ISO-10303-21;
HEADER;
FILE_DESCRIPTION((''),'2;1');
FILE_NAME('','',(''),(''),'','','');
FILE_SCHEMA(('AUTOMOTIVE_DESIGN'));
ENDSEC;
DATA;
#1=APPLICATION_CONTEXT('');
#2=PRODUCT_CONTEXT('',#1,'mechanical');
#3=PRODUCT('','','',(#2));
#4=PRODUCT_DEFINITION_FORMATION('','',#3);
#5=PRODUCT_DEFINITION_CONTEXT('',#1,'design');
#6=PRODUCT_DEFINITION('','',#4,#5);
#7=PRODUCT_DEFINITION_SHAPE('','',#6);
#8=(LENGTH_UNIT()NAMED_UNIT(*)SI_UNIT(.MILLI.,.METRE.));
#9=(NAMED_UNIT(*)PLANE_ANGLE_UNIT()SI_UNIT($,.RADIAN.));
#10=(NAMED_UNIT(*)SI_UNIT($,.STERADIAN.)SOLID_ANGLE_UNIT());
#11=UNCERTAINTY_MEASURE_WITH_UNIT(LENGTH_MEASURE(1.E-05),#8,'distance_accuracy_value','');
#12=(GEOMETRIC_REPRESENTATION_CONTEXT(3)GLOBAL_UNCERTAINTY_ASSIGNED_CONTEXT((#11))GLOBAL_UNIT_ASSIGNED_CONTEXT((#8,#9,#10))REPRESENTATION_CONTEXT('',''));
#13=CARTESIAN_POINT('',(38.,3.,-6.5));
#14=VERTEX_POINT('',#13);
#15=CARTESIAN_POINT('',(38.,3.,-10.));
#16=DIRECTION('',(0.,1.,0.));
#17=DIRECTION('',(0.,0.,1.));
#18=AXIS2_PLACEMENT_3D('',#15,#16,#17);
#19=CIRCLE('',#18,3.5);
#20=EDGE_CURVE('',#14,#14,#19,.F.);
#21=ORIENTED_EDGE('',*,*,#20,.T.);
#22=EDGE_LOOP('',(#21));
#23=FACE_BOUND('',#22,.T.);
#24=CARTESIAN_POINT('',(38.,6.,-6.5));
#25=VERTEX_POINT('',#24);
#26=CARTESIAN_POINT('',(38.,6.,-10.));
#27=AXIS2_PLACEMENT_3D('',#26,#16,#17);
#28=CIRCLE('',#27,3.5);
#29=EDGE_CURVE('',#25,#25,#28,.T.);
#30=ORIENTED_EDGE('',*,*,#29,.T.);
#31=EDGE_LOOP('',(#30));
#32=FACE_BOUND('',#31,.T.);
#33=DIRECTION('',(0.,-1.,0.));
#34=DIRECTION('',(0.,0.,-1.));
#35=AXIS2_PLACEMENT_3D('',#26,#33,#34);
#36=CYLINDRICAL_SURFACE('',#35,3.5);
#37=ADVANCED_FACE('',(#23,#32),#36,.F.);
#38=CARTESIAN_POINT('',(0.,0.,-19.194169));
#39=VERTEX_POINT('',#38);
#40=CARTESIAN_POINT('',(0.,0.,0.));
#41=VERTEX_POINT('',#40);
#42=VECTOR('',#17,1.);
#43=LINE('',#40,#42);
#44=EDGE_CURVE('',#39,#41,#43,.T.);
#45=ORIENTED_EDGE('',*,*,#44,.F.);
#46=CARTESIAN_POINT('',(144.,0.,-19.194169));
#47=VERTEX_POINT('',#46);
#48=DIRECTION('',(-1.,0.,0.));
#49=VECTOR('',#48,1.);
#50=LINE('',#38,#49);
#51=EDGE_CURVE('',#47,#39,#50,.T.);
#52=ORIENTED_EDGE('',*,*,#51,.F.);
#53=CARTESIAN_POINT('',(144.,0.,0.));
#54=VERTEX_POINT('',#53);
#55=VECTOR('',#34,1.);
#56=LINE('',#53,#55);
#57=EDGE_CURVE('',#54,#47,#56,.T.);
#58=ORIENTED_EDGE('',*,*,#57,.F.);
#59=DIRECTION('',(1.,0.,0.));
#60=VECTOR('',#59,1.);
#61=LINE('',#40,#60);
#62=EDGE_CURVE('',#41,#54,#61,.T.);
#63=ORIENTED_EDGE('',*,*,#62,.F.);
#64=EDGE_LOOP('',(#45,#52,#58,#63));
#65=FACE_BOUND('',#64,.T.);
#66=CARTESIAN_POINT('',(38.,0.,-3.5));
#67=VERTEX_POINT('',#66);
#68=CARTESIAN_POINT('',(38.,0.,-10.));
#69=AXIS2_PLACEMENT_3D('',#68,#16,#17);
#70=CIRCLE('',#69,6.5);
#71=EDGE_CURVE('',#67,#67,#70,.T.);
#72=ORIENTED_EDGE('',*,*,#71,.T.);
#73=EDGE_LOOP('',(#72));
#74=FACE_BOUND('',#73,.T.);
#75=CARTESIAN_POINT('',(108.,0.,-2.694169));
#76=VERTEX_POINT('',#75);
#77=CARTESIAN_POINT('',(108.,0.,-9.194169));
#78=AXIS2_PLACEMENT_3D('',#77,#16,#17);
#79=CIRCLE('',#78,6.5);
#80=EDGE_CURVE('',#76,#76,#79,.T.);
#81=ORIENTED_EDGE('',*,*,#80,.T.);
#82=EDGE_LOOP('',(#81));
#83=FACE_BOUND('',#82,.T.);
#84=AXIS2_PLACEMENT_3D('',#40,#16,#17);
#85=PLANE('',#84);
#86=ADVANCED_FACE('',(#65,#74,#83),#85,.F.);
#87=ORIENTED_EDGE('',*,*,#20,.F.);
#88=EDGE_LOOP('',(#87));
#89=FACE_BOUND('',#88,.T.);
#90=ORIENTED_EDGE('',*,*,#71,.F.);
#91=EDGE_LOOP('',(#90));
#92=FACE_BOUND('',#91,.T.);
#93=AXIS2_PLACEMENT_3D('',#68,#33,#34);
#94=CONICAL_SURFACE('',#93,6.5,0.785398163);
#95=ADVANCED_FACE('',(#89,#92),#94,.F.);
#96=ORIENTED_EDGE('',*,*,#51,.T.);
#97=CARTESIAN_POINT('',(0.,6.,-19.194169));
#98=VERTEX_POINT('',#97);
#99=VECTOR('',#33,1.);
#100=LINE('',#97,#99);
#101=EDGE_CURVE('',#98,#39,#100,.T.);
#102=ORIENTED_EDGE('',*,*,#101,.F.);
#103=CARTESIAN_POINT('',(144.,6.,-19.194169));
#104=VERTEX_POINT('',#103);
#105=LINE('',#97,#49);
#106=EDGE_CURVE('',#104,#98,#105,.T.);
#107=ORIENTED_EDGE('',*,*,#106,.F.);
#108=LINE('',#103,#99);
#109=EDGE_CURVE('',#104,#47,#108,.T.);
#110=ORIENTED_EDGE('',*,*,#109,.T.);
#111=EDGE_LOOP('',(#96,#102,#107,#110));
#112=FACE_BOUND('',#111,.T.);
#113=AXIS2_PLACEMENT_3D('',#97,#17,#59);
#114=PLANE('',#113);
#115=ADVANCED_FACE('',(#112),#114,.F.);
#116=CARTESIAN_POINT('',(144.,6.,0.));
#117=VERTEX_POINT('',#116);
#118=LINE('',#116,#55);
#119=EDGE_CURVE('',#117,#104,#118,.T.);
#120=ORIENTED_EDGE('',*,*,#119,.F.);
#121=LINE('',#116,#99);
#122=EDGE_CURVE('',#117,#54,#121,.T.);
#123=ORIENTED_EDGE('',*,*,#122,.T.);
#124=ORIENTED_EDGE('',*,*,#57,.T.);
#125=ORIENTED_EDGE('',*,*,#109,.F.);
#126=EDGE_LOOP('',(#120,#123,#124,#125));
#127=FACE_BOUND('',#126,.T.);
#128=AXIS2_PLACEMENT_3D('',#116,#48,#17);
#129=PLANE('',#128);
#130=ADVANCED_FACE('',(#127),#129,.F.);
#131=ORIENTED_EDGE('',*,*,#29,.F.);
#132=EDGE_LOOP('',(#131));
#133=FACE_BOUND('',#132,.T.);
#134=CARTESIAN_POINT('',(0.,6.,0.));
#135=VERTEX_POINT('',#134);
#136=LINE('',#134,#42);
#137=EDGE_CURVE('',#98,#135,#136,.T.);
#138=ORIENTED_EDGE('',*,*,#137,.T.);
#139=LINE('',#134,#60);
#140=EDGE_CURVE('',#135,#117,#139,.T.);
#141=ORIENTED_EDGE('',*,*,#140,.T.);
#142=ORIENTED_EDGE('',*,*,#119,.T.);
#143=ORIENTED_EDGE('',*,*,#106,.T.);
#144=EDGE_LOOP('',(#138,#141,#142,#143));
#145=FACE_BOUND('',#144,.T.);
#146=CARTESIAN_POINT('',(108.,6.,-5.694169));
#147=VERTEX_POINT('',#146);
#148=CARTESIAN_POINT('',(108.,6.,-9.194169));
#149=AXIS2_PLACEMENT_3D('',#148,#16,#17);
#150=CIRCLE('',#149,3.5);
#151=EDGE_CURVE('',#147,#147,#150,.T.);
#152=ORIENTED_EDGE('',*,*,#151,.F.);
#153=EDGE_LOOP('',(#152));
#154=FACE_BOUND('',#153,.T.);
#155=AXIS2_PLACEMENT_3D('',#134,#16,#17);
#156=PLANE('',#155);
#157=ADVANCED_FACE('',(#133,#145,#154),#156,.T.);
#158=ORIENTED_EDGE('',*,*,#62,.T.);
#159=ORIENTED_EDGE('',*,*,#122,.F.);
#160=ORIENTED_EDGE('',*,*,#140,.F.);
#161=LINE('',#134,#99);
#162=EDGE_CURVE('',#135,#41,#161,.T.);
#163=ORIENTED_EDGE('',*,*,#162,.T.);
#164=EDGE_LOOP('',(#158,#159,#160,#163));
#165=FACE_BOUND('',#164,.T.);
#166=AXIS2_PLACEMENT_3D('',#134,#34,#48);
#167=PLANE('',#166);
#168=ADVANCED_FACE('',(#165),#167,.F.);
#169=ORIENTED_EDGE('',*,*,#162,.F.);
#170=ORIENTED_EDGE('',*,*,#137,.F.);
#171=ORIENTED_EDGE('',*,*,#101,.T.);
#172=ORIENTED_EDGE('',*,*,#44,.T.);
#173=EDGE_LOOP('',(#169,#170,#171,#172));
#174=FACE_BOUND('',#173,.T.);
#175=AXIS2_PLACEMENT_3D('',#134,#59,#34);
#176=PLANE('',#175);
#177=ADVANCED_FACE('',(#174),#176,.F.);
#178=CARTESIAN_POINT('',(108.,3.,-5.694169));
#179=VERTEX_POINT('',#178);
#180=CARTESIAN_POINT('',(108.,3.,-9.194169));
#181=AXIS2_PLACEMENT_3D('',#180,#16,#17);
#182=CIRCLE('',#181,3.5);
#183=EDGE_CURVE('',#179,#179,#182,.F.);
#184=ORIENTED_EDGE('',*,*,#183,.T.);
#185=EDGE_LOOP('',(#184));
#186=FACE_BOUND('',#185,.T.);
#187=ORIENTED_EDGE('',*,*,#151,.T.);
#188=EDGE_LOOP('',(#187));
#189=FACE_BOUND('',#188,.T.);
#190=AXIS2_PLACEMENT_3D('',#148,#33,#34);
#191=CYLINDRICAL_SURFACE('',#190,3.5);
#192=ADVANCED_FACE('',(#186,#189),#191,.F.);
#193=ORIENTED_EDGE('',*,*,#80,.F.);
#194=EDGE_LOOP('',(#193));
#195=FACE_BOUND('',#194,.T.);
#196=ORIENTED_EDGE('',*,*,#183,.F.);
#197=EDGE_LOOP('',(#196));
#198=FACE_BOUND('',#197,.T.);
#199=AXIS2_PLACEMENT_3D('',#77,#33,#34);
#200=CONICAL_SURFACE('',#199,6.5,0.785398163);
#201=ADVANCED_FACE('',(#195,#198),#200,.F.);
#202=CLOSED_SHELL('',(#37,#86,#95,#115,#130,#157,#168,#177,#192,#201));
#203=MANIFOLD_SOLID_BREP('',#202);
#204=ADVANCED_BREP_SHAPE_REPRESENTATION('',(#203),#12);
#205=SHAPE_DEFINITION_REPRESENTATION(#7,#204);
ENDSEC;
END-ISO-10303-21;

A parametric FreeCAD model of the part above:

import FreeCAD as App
import Part
import Sketcher


def edges_at(feature, points):
    """Names of the edges that pass closest to the given points."""
    edges = feature.Shape.Edges
    near = lambda p: min(range(len(edges)), key=lambda i: edges[i].distToShape(Part.Vertex(*p))[0])
    return sorted({f"Edge{near(p) + 1}" for p in points})


def add_polygon(sketch, points):
    """Adds a closed chain of lines whose ends are joined by coincident constraints."""
    first, n = sketch.GeometryCount, len(points)
    for a, b in zip(points, points[1:] + points[:1]):
        sketch.addGeometry(Part.LineSegment(App.Vector(*a, 0), App.Vector(*b, 0)), False)
    for i in range(n):
        sketch.addConstraint(Sketcher.Constraint("Coincident", first + i, 2, first + (i + 1) % n, 1))

doc = App.newDocument("Part")
body = doc.addObject("PartDesign::Body", "Body")

# Sketch on XZ plane
sketch1 = body.newObject("Sketcher::SketchObject", "Sketch")
sketch1.AttachmentSupport = (doc.getObject("XZ_Plane"), [""])
sketch1.MapMode = "FlatFace"
add_polygon(sketch1, [(144, -19.2), (0, -19.2), (0, 0), (144, 0)])  # lines 0-3
sketch1.addGeometry(Part.Circle(App.Vector(108, -9.2, 0), App.Vector(0, 0, 1), 3.5), False)  # 4
sketch1.addGeometry(Part.Circle(App.Vector(38, -10, 0), App.Vector(0, 0, 1), 3.5), False)  # 5
sketch1.addConstraint([
    Sketcher.Constraint("Horizontal", 0),
    Sketcher.Constraint("Vertical", 1),
    Sketcher.Constraint("Horizontal", 2),
    Sketcher.Constraint("Vertical", 3),
    Sketcher.Constraint("Coincident", 1, 2, -1, 1),
    Sketcher.Constraint("Equal", 4, 5),
    Sketcher.Constraint("Diameter", 4, 7.0),
    Sketcher.Constraint("DistanceX", 0, 2, 0, 1, 144.0),
    Sketcher.Constraint("DistanceX", -1, 1, 4, 3, 108.0),
    Sketcher.Constraint("DistanceX", -1, 1, 5, 3, 38.0),
    Sketcher.Constraint("DistanceY", 5, 3, -1, 1, 10.0),
    Sketcher.Constraint("DistanceY", 0, 2, 4, 3, 10.0),
    Sketcher.Constraint("DistanceY", 1, 1, 1, 2, 19.194169),
])
pad1 = body.newObject("PartDesign::Pad", "Pad")
pad1.Profile = sketch1
pad1.Length = 6
pad1.Reversed = True
doc.recompute()

chamfer = body.newObject("PartDesign::Chamfer", "Chamfer")
chamfer.Base = (pad1, edges_at(pad1, [(38, 0, -13.5), (108, 0, -12.694)]))
chamfer.Size = 3

doc.recompute()
